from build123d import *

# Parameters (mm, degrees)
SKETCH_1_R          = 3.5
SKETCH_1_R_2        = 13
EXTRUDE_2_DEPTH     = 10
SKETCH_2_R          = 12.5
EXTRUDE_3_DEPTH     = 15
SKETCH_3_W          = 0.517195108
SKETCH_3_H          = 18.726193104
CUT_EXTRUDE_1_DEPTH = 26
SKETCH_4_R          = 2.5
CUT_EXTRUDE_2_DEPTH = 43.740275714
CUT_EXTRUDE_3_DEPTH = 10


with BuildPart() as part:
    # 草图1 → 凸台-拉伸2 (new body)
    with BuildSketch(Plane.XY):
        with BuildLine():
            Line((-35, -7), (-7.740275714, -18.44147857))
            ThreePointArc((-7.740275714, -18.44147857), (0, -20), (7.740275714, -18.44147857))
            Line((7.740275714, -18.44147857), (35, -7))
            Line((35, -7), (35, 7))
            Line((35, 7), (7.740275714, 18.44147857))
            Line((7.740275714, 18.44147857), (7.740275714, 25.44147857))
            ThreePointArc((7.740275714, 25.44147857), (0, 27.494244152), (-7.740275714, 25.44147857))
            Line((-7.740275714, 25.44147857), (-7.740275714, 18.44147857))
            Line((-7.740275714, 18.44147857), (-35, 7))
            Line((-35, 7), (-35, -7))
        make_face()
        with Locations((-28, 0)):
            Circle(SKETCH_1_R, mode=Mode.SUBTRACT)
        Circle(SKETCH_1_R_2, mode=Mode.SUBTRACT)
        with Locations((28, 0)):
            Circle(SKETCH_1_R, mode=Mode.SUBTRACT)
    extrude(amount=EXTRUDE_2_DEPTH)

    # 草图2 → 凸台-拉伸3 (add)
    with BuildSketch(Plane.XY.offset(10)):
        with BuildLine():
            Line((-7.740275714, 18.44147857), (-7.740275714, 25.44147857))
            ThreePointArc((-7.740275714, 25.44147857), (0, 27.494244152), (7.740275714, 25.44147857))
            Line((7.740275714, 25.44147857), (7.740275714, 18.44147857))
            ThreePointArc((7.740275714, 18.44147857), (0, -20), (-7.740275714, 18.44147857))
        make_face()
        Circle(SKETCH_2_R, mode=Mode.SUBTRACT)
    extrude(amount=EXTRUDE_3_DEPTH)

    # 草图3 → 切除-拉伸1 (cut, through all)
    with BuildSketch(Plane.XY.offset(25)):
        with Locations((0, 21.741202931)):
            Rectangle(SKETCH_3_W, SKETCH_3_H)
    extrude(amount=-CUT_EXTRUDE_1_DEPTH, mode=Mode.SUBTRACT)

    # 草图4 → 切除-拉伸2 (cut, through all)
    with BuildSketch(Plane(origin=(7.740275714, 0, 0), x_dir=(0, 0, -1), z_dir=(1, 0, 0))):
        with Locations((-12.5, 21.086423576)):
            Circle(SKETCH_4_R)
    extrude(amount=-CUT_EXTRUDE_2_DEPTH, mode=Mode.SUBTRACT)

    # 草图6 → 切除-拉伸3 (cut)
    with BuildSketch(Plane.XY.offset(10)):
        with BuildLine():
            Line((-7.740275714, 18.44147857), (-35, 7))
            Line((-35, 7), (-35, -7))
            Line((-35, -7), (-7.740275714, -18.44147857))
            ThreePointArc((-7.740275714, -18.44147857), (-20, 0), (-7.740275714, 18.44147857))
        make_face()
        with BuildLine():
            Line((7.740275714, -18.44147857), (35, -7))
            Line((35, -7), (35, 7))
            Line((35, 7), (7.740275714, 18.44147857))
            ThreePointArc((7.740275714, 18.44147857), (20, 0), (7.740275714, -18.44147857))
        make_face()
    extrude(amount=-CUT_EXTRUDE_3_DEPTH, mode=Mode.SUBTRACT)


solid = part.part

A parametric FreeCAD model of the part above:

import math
import FreeCAD as App
import Part
import Sketcher
from FreeCAD import Vector

doc = App.newDocument("Part")
body = doc.addObject("PartDesign::Body", "Body")

# Sketch on XY plane
sketch1 = doc.addObject("Sketcher::SketchObject", "Sketch")
body.addObject(sketch1)
sketch1.AttachmentSupport = (doc.XY_Plane, [""])
sketch1.MapMode = "FlatFace"
sketch1.addGeometry(Part.LineSegment(Vector(-35, -7, 0), Vector(-7.7, -18.4, 0)), False)
sketch1.addGeometry(Part.ArcOfCircle(Part.Circle(Vector(0, 0, 0), Vector(0, 0, 1), 20), math.radians(-113), math.radians(-67)), False)
sketch1.addGeometry(Part.LineSegment(Vector(7.7, -18.4, 0), Vector(35, -7, 0)), False)
sketch1.addGeometry(Part.LineSegment(Vector(35, -7, 0), Vector(35, 7, 0)), False)
sketch1.addGeometry(Part.LineSegment(Vector(35, 7, 0), Vector(7.7, 18.4, 0)), False)
sketch1.addGeometry(Part.LineSegment(Vector(7.7, 18.4, 0), Vector(7.7, 25.4, 0)), False)
sketch1.addGeometry(Part.ArcOfCircle(Part.Circle(Vector(0, 11.9, 0), Vector(0, 0, 1), 15.6), math.radians(60), math.radians(120)), False)
sketch1.addGeometry(Part.LineSegment(Vector(-7.7, 25.4, 0), Vector(-7.7, 18.4, 0)), False)
sketch1.addGeometry(Part.LineSegment(Vector(-7.7, 18.4, 0), Vector(-35, 7, 0)), False)
sketch1.addGeometry(Part.LineSegment(Vector(-35, 7, 0), Vector(-35, -7, 0)), False)
sketch1.addGeometry(Part.Circle(Vector(-28, 0, 0), Vector(0, 0, 1), 3.5), False)
sketch1.addGeometry(Part.Circle(Vector(0, 0, 0), Vector(0, 0, 1), 13), False)
sketch1.addGeometry(Part.Circle(Vector(28, 0, 0), Vector(0, 0, 1), 3.5), False)
sketch1.addConstraint(Sketcher.Constraint("Tangent", 0, 2, 1, 1))
sketch1.addConstraint(Sketcher.Constraint("Tangent", 1, 2, 2, 1))
sketch1.addConstraint(Sketcher.Constraint("Coincident", 2, 2, 3, 1))
sketch1.addConstraint(Sketcher.Constraint("Coincident", 3, 2, 4, 1))
sketch1.addConstraint(Sketcher.Constraint("Coincident", 4, 2, 5, 1))
sketch1.addConstraint(Sketcher.Constraint("Coincident", 5, 2, 6, 1))
sketch1.addConstraint(Sketcher.Constraint("Coincident", 6, 2, 7, 1))
sketch1.addConstraint(Sketcher.Constraint("Coincident", 7, 2, 8, 1))
sketch1.addConstraint(Sketcher.Constraint("Coincident", 8, 2, 9, 1))
sketch1.addConstraint(Sketcher.Constraint("Coincident", 9, 2, 0, 1))
sketch1.addConstraint(Sketcher.Constraint("Vertical", 3))
sketch1.addConstraint(Sketcher.Constraint("Vertical", 5))
sketch1.addConstraint(Sketcher.Constraint("Vertical", 7))
sketch1.addConstraint(Sketcher.Constraint("Vertical", 9))
sketch1.addConstraint(Sketcher.Constraint("Coincident", 1, 3, -1, 1))
sketch1.addConstraint(Sketcher.Constraint("Coincident", 11, 3, -1, 1))
sketch1.addConstraint(Sketcher.Constraint("Equal", 10, 12))
sketch1.addConstraint(Sketcher.Constraint("Symmetric", 10, 3, 12, 3, -1, 1))
sketch1.addConstraint(Sketcher.Constraint("Symmetric", 0, 2, 4, 2, -1, 1))
sketch1.addConstraint(Sketcher.Constraint("Symmetric", 1, 2, 7, 2, -1, 1))
sketch1.addConstraint(Sketcher.Constraint("Symmetric", 2, 2, 8, 2, -1, 1))
sketch1.addConstraint(Sketcher.Constraint("Symmetric", 5, 2, 6, 2, -2))
sketch1.addConstraint(Sketcher.Constraint("PointOnObject", 10, 3, -1))
sketch1.addConstraint(Sketcher.Constraint("Parallel", 0, 4))
sketch1.addConstraint(Sketcher.Constraint("Diameter", 10, 7.0))
sketch1.addConstraint(Sketcher.Constraint("Diameter", 11, 26.0))
sketch1.addConstraint(Sketcher.Constraint("Radius", 1, 20.0))
sketch1.addConstraint(Sketcher.Constraint("DistanceY", 3, 1, 3, 2, 14.0))
sketch1.addConstraint(Sketcher.Constraint("DistanceY", 5, 1, 5, 2, 7.0))
sketch1.addConstraint(Sketcher.Constraint("DistanceX", 10, 3, -1, 1, 28.0))
sketch1.addConstraint(Sketcher.Constraint("DistanceX", -1, 1, 2, 2, 35.0))
sketch1.addConstraint(Sketcher.Constraint("Radius", 6, 15.619347))
pad1 = doc.addObject("PartDesign::Pad", "Pad")
body.addObject(pad1)
pad1.Profile = sketch1
pad1.Length = 10

# Sketch on XY plane
sketch2 = doc.addObject("Sketcher::SketchObject", "Sketch001")
body.addObject(sketch2)
sketch2.AttachmentSupport = (doc.XY_Plane, [""])
sketch2.MapMode = "FlatFace"
sketch2.AttachmentOffset = App.Placement(Vector(0, 0, 10), App.Rotation())
sketch2.addGeometry(Part.LineSegment(Vector(-8, 25, 0), Vector(-8, 18, 0)), False)
sketch2.addGeometry(Part.ArcOfCircle(Part.Circle(Vector(0, 0, 0), Vector(0, 0, 1), 20), math.radians(113), math.radians(427)), False)
sketch2.addGeometry(Part.LineSegment(Vector(8, 18, 0), Vector(8, 25, 0)), False)
sketch2.addGeometry(Part.ArcOfCircle(Part.Circle(Vector(0, 12, 0), Vector(0, 0, 1), 16), math.radians(60), math.radians(120)), False)
sketch2.addGeometry(Part.Circle(Vector(0, 0, 0), Vector(0, 0, 1), 12), False)
sketch2.addConstraint(Sketcher.Constraint("Coincident", 0, 2, 1, 1))
sketch2.addConstraint(Sketcher.Constraint("Coincident", 1, 2, 2, 1))
sketch2.addConstraint(Sketcher.Constraint("Coincident", 2, 2, 3, 1))
sketch2.addConstraint(Sketcher.Constraint("Coincident", 3, 2, 0, 1))
sketch2.addConstraint(Sketcher.Constraint("Vertical", 0))
sketch2.addConstraint(Sketcher.Constraint("Vertical", 2))
sketch2.addConstraint(Sketcher.Constraint("Coincident", 1, 3, -1, 1))
sketch2.addConstraint(Sketcher.Constraint("Coincident", 4, 3, -1, 1))
sketch2.addConstraint(Sketcher.Constraint("Symmetric", 2, 2, 3, 2, -2))
sketch2.addConstraint(Sketcher.Constraint("Diameter", 4, 25.0))
sketch2.addConstraint(Sketcher.Constraint("Radius", 1, 20.0))
sketch2.addConstraint(Sketcher.Constraint("DistanceY", 0, 2, 0, 1, 7.0))
sketch2.addConstraint(Sketcher.Constraint("Radius", 3, 15.619347))
sketch2.addConstraint(Sketcher.Constraint("DistanceY", -1, 1, 0, 2, 18.441479))
pad2 = doc.addObject("PartDesign::Pad", "Pad001")
body.addObject(pad2)
pad2.Profile = sketch2
pad2.Length = 15

# Sketch on XY plane
sketch3 = doc.addObject("Sketcher::SketchObject", "Sketch002")
body.addObject(sketch3)
sketch3.AttachmentSupport = (doc.XY_Plane, [""])
sketch3.MapMode = "FlatFace"
sketch3.AttachmentOffset = App.Placement(Vector(0, 0, 25), App.Rotation())
sketch3.addGeometry(Part.LineSegment(Vector(-0.3, 31.1, 0), Vector(-0.3, 12.4, 0)), False)
sketch3.addGeometry(Part.LineSegment(Vector(-0.3, 12.4, 0), Vector(0.3, 12.4, 0)), False)
sketch3.addGeometry(Part.LineSegment(Vector(0.3, 12.4, 0), Vector(0.3, 31.1, 0)), False)
sketch3.addGeometry(Part.LineSegment(Vector(0.3, 31.1, 0), Vector(-0.3, 31.1, 0)), False)
sketch3.addConstraint(Sketcher.Constraint("Coincident", 0, 2, 1, 1))
sketch3.addConstraint(Sketcher.Constraint("Coincident", 1, 2, 2, 1))
sketch3.addConstraint(Sketcher.Constraint("Coincident", 2, 2, 3, 1))
sketch3.addConstraint(Sketcher.Constraint("Coincident", 3, 2, 0, 1))
sketch3.addConstraint(Sketcher.Constraint("Vertical", 0))
sketch3.addConstraint(Sketcher.Constraint("Horizontal", 1))
sketch3.addConstraint(Sketcher.Constraint("Vertical", 2))
sketch3.addConstraint(Sketcher.Constraint("Horizontal", 3))
sketch3.addConstraint(Sketcher.Constraint("DistanceY", -1, 1, 2, 2, 31.104299))
sketch3.addConstraint(Sketcher.Constraint("DistanceX", 1, 1, 1, 2, 0.517195))
sketch3.addConstraint(Sketcher.Constraint("DistanceY", 0, 2, 0, 1, 18.726193))
sketch3.addConstraint(Sketcher.Constraint("DistanceX", 0, 2, -1, 1, 0.258598))
pocket1 = doc.addObject("PartDesign::Pocket", "Pocket")
body.addObject(pocket1)
pocket1.Profile = sketch3
pocket1.Type = "ThroughAll"

# Sketch on YZ plane
sketch4 = doc.addObject("Sketcher::SketchObject", "Sketch003")
body.addObject(sketch4)
sketch4.AttachmentSupport = (doc.YZ_Plane, [""])
sketch4.MapMode = "FlatFace"
sketch4.AttachmentOffset = App.Placement(Vector(0, 0, 7.740276), App.Rotation())
sketch4.addGeometry(Part.Circle(Vector(21.1, 12.5, 0), Vector(0, 0, 1), 2.5), False)
sketch4.addConstraint(Sketcher.Constraint("Diameter", 0, 5.0))
sketch4.addConstraint(Sketcher.Constraint("DistanceY", -1, 1, 0, 3, 12.5))
sketch4.addConstraint(Sketcher.Constraint("DistanceX", -1, 1, 0, 3, 21.086424))
pocket2 = doc.addObject("PartDesign::Pocket", "Pocket001")
body.addObject(pocket2)
pocket2.Profile = sketch4
pocket2.Type = "ThroughAll"

# Sketch on XY plane
sketch5 = doc.addObject("Sketcher::SketchObject", "Sketch004")
body.addObject(sketch5)
sketch5.AttachmentSupport = (doc.XY_Plane, [""])
sketch5.MapMode = "FlatFace"
sketch5.AttachmentOffset = App.Placement(Vector(0, 0, 10), App.Rotation())
sketch5.addGeometry(Part.LineSegment(Vector(-8, 18, 0), Vector(-35, 7, 0)), False)
sketch5.addGeometry(Part.LineSegment(Vector(-35, 7, 0), Vector(-35, -7, 0)), False)
sketch5.addGeometry(Part.LineSegment(Vector(-35, -7, 0), Vector(-8, -18, 0)), False)
sketch5.addGeometry(Part.ArcOfCircle(Part.Circle(Vector(0, 0, 0), Vector(0, 0, 1), 20), math.radians(113), math.radians(247)), False)
sketch5.addGeometry(Part.LineSegment(Vector(8, -18, 0), Vector(35, -7, 0)), False)
sketch5.addGeometry(Part.LineSegment(Vector(35, -7, 0), Vector(35, 7, 0)), False)
sketch5.addGeometry(Part.LineSegment(Vector(35, 7, 0), Vector(8, 18, 0)), False)
sketch5.addGeometry(Part.ArcOfCircle(Part.Circle(Vector(0, 0, 0), Vector(0, 0, 1), 20), math.radians(-67), math.radians(67)), False)
sketch5.addConstraint(Sketcher.Constraint("Coincident", 0, 2, 1, 1))
sketch5.addConstraint(Sketcher.Constraint("Coincident", 1, 2, 2, 1))
sketch5.addConstraint(Sketcher.Constraint("Tangent", 2, 2, 3, 2))
sketch5.addConstraint(Sketcher.Constraint("Tangent", 3, 1, 0, 1))
sketch5.addConstraint(Sketcher.Constraint("Coincident", 4, 2, 5, 1))
sketch5.addConstraint(Sketcher.Constraint("Coincident", 5, 2, 6, 1))
sketch5.addConstraint(Sketcher.Constraint("Tangent", 6, 2, 7, 2))
sketch5.addConstraint(Sketcher.Constraint("Tangent", 7, 1, 4, 1))
sketch5.addConstraint(Sketcher.Constraint("Vertical", 1))
sketch5.addConstraint(Sketcher.Constraint("Vertical", 5))
sketch5.addConstraint(Sketcher.Constraint("Coincident", 3, 3, -1, 1))
sketch5.addConstraint(Sketcher.Constraint("Coincident", 7, 3, -1, 1))
sketch5.addConstraint(Sketcher.Constraint("Equal", 3, 7))
sketch5.addConstraint(Sketcher.Constraint("Symmetric", 0, 2, 4, 2, -1, 1))
sketch5.addConstraint(Sketcher.Constraint("Parallel", 2, 6))
sketch5.addConstraint(Sketcher.Constraint("Horizontal", 1, 2, 4, 2))
sketch5.addConstraint(Sketcher.Constraint("Radius", 3, 20.0))
sketch5.addConstraint(Sketcher.Constraint("DistanceY", 1, 2, 1, 1, 14.0))
sketch5.addConstraint(Sketcher.Constraint("DistanceX", 0, 2, -1, 1, 35.0))
pocket3 = doc.addObject("PartDesign::Pocket", "Pocket002")
body.addObject(pocket3)
pocket3.Profile = sketch5
pocket3.Length = 10

doc.recompute()
